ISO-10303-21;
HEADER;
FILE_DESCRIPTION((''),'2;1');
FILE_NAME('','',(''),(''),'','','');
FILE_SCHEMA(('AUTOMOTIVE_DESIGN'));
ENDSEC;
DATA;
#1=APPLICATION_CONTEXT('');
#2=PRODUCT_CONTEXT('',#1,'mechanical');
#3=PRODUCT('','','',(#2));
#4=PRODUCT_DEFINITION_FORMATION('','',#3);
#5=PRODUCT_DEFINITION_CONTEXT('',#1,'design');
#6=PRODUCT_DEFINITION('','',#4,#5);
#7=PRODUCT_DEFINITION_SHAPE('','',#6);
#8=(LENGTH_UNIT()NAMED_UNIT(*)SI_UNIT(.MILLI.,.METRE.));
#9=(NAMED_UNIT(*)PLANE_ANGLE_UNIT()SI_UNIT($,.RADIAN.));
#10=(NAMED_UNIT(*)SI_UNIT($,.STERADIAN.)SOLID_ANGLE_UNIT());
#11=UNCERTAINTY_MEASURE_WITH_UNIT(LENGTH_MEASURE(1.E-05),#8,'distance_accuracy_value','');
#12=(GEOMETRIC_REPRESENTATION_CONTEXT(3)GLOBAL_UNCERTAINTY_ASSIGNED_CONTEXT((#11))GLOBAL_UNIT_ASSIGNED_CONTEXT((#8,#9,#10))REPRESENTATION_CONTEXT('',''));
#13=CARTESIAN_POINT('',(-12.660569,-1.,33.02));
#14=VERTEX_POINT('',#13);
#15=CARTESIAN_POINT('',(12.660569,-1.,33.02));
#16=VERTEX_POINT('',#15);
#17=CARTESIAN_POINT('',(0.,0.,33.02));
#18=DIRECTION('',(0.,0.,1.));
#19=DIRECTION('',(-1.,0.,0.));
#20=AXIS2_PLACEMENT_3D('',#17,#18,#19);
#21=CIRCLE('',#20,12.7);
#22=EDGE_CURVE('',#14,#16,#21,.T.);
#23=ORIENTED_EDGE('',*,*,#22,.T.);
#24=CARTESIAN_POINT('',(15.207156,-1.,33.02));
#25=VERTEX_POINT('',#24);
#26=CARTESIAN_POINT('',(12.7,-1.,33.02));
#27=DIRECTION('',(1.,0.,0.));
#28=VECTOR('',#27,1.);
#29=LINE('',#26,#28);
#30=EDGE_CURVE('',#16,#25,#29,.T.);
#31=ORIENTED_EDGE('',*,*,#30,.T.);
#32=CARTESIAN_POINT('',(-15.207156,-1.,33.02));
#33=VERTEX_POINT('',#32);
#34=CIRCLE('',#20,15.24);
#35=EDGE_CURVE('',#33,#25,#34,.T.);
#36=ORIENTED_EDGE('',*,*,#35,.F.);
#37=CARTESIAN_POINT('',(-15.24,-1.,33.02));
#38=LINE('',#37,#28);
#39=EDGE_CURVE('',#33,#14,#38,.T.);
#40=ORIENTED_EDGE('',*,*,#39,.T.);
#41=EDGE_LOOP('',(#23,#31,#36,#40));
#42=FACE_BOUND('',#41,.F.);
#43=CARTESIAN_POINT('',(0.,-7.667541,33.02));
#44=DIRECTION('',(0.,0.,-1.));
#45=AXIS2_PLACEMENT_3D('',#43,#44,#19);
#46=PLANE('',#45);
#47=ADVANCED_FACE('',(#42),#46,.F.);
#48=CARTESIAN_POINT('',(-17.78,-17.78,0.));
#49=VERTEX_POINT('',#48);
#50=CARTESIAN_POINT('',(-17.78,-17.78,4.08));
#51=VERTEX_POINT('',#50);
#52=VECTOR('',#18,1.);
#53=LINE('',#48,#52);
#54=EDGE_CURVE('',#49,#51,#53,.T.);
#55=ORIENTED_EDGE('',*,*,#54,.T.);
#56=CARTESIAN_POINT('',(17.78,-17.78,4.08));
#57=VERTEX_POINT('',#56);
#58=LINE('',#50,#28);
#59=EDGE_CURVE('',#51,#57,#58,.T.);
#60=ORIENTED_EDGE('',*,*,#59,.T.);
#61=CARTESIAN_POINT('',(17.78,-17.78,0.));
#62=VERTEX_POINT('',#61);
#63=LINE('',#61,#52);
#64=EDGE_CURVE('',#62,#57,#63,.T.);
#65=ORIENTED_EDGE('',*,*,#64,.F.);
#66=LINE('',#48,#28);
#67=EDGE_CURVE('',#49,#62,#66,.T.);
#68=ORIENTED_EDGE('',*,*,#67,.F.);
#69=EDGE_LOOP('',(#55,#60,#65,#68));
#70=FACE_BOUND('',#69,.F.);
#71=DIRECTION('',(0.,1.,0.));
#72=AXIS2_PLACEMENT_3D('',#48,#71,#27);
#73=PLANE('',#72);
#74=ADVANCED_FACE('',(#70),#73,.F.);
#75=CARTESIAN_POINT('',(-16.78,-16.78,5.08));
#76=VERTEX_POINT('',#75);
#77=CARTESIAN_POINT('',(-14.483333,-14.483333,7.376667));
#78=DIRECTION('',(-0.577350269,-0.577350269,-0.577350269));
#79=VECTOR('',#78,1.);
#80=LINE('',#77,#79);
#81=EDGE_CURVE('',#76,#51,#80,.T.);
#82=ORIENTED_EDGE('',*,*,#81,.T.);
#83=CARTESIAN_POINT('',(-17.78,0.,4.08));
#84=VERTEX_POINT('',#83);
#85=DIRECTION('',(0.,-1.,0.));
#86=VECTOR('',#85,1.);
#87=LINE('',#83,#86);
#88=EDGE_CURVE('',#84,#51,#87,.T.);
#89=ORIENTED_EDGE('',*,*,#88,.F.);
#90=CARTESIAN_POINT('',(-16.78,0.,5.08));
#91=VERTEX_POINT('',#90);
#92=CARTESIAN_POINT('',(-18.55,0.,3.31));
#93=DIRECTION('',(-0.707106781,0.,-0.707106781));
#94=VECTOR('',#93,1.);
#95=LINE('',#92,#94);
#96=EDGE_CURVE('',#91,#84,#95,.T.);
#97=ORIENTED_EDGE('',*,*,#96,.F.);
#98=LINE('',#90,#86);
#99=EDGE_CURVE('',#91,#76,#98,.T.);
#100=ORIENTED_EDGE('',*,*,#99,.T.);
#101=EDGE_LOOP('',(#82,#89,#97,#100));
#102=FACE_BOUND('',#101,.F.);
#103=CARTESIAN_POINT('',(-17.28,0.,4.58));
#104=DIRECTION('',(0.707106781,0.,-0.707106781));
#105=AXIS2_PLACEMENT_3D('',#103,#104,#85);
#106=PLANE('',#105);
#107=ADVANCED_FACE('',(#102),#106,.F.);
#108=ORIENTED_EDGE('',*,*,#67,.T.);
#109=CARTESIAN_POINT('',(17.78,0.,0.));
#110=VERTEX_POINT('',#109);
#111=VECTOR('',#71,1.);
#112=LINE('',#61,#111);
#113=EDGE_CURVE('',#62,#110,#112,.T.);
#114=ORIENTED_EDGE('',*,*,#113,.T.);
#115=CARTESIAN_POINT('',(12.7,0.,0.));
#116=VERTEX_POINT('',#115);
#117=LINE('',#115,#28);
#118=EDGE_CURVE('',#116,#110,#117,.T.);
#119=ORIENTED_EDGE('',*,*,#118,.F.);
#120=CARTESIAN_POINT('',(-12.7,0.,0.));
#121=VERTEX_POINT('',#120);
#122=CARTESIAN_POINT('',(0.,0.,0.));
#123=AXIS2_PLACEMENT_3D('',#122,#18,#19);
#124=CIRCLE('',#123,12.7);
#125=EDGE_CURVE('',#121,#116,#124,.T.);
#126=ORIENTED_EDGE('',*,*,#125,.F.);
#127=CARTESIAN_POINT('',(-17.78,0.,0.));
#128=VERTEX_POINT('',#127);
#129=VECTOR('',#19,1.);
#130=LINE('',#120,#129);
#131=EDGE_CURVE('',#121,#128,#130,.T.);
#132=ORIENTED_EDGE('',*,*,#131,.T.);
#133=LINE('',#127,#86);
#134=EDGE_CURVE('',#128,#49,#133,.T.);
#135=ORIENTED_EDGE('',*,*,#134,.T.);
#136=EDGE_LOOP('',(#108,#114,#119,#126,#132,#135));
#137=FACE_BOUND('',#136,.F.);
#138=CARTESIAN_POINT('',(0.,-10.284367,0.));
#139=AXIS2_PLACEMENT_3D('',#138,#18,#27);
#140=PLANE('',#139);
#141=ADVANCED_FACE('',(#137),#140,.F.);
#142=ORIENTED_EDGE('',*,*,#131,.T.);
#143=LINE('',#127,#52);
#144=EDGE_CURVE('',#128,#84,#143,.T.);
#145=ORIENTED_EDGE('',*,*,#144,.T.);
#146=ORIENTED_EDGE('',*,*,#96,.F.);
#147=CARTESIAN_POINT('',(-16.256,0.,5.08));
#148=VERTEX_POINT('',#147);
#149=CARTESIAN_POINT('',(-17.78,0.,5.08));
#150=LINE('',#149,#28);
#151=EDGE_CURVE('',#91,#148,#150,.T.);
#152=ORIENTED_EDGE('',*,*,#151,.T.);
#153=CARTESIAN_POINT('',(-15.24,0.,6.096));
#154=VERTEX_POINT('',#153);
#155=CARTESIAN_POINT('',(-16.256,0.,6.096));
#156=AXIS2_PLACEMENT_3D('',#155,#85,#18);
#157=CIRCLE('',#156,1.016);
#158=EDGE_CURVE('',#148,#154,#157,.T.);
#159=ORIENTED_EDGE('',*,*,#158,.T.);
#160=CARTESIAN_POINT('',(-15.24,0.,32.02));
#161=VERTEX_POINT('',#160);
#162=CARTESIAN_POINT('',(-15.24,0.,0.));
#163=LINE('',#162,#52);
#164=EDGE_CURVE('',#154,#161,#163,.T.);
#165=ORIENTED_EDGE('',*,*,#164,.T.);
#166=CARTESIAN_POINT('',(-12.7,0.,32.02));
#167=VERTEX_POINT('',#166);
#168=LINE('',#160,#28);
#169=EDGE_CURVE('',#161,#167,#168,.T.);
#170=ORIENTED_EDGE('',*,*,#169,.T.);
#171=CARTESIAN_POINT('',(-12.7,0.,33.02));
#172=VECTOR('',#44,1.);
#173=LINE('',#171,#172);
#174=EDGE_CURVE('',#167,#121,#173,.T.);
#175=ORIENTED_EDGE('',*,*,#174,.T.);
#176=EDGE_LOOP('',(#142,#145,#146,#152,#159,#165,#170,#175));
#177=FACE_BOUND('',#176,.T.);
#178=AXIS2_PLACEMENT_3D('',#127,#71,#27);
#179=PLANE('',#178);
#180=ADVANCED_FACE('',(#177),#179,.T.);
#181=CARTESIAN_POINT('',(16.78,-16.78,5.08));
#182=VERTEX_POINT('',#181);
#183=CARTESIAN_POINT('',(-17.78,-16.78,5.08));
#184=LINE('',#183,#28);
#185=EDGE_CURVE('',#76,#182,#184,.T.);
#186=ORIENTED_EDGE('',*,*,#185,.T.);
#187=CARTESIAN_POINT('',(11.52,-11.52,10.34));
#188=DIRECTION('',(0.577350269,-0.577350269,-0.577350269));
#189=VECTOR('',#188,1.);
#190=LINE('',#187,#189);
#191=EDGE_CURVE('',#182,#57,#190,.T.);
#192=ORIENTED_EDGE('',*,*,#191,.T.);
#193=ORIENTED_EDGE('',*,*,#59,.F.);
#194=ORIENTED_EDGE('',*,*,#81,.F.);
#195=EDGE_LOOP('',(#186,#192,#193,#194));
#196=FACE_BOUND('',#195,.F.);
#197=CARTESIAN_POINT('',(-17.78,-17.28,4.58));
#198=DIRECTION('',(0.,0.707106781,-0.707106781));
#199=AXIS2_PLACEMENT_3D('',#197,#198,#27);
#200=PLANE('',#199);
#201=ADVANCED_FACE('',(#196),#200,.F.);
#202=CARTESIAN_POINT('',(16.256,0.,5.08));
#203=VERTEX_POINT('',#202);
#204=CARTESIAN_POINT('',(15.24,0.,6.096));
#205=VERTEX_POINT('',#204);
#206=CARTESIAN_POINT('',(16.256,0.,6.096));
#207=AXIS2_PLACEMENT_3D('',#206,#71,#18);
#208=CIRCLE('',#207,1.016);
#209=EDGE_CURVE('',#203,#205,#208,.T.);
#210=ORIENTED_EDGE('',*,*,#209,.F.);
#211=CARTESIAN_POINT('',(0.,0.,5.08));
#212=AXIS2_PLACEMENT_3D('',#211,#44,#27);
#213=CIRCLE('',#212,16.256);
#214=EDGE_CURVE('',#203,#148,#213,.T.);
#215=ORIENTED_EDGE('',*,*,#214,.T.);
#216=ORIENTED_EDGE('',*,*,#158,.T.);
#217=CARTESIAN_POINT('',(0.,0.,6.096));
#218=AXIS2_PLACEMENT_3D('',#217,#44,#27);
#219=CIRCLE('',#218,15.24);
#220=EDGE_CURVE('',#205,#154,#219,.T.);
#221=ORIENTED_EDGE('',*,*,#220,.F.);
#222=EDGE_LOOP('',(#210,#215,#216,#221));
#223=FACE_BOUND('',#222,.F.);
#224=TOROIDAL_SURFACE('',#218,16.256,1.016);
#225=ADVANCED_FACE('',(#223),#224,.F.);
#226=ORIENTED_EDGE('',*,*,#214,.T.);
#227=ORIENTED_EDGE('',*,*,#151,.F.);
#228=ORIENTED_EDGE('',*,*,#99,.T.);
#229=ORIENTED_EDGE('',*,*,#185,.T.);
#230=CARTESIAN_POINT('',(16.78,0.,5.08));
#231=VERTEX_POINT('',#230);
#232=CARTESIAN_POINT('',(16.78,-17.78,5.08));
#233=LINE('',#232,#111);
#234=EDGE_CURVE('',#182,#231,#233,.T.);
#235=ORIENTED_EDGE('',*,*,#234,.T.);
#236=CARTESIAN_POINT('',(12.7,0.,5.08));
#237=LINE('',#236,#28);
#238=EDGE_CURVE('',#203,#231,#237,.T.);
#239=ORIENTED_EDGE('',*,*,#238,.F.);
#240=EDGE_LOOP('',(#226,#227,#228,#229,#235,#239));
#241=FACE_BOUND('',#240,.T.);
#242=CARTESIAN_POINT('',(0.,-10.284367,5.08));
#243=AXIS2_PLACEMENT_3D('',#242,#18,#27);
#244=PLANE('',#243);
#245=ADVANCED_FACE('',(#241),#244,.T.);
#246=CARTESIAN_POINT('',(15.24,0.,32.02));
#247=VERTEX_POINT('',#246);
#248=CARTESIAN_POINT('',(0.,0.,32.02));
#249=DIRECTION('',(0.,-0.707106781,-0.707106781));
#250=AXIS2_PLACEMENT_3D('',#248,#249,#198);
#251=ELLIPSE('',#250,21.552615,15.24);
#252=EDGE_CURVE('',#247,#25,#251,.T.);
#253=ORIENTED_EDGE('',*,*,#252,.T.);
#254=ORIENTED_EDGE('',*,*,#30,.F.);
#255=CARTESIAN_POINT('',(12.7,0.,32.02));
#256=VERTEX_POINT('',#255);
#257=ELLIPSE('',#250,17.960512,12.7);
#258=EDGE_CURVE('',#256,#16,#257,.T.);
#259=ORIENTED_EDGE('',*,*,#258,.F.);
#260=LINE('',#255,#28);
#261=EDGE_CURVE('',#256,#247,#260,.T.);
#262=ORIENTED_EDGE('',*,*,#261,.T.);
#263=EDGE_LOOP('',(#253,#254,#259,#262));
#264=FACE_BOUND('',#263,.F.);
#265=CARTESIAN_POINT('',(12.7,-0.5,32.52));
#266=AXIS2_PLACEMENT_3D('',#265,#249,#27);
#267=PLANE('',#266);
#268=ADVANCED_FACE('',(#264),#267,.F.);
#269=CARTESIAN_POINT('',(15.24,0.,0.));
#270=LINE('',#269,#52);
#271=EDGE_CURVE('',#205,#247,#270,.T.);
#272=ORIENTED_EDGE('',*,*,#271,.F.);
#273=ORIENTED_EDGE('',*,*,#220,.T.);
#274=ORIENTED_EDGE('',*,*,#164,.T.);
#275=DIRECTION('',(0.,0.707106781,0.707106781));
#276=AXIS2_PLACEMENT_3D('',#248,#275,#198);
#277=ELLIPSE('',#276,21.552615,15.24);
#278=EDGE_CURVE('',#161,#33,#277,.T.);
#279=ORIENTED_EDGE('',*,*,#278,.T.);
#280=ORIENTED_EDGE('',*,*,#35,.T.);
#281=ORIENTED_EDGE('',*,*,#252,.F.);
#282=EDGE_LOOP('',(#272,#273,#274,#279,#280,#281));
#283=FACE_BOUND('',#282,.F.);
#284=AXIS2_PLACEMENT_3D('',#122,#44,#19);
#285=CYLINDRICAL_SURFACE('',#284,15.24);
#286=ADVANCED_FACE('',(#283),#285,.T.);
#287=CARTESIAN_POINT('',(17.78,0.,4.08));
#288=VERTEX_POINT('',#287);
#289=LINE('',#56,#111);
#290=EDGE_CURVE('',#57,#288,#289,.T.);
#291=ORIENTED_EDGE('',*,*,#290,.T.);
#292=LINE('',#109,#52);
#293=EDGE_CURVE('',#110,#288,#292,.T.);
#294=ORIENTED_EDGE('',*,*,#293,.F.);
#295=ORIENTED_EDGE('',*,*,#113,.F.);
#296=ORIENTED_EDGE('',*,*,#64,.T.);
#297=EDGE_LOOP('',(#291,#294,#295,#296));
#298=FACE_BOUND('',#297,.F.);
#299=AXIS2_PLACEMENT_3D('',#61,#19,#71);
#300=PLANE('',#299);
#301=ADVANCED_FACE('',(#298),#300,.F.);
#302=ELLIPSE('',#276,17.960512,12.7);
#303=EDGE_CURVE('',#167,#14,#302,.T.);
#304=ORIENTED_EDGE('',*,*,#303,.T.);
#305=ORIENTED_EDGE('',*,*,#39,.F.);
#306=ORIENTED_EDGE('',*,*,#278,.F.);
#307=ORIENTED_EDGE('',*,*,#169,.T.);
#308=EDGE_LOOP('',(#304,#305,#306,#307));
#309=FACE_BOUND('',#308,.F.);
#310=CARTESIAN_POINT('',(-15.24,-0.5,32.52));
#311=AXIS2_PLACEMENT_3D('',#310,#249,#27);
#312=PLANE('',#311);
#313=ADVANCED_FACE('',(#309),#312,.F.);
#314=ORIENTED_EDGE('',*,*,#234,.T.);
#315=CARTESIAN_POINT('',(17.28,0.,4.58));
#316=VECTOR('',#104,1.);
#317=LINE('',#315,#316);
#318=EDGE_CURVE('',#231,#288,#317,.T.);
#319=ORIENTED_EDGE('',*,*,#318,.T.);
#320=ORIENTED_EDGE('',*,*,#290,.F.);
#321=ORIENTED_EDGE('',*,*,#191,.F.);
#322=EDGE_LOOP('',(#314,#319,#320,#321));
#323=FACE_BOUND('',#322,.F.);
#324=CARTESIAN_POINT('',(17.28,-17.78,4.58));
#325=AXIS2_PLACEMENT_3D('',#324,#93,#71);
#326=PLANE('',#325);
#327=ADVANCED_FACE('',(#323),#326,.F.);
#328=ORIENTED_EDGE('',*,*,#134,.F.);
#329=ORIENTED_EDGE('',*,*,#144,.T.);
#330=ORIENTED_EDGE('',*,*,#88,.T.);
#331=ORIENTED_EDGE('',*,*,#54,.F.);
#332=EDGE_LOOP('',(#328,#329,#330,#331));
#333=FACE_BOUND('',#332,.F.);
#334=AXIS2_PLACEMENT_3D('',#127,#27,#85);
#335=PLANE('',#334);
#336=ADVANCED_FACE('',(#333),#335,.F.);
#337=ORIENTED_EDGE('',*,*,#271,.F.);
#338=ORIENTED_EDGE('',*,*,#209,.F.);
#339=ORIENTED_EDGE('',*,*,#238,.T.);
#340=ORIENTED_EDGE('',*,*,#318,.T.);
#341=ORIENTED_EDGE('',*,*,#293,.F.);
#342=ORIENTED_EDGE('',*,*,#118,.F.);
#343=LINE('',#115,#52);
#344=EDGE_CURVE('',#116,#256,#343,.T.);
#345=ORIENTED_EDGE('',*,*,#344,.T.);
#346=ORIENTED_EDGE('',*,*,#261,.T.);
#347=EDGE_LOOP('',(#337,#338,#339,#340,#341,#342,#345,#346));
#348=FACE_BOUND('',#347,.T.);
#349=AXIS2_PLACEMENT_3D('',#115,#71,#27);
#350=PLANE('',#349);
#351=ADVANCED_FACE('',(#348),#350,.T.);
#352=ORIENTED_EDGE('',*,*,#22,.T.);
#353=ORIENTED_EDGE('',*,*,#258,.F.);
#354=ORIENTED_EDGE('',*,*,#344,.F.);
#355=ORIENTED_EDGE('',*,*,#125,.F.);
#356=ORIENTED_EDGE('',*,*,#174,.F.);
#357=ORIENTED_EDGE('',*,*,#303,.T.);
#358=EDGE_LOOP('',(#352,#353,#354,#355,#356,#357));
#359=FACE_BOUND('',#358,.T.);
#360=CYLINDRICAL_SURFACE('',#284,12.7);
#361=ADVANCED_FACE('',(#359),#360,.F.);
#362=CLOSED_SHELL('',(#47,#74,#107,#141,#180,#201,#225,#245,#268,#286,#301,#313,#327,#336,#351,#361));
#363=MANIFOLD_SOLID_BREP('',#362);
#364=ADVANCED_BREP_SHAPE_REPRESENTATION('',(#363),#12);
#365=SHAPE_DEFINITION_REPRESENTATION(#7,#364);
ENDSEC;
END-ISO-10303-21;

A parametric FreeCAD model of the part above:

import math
import FreeCAD as App
import Part
import Sketcher
from FreeCAD import Vector
Q = App.Units.Quantity


def edges_at(feature, points):
    """Names of the edges that pass closest to the given points."""
    edges = feature.Shape.Edges
    near = lambda p: min(range(len(edges)), key=lambda i: edges[i].distToShape(Part.Vertex(*p))[0])
    return sorted({f"Edge{near(p) + 1}" for p in points})

doc = App.newDocument("Part")
body = doc.addObject("PartDesign::Body", "Body")

sketch1 = body.newObject("Sketcher::SketchObject", "Sketch")
sketch1.AttachmentSupport = (doc.getObject("XY_Plane"), [""])
sketch1.MapMode = "FlatFace"
sketch1.addGeometry(Part.ArcOfCircle(Part.Circle(Vector(0, 0, 0), Vector(0, 0, 1), 12.7), math.radians(180), math.radians(360)), False)
sketch1.addGeometry(Part.LineSegment(Vector(-12.7, 0, 0), Vector(-15.2, 0, 0)), False)
sketch1.addGeometry(Part.ArcOfCircle(Part.Circle(Vector(0, 0, 0), Vector(0, 0, 1), 15.2), math.radians(180), math.radians(360)), False)
sketch1.addGeometry(Part.LineSegment(Vector(15.2, 0, 0), Vector(12.7, 0, 0)), False)
sketch1.addConstraint(Sketcher.Constraint("Coincident", 0, 1, 1, 1))
sketch1.addConstraint(Sketcher.Constraint("Coincident", 1, 2, 2, 1))
sketch1.addConstraint(Sketcher.Constraint("Coincident", 2, 2, 3, 1))
sketch1.addConstraint(Sketcher.Constraint("Coincident", 3, 2, 0, 2))
sketch1.addConstraint(Sketcher.Constraint("Horizontal", 1))
sketch1.addConstraint(Sketcher.Constraint("Horizontal", 3))
sketch1.addConstraint(Sketcher.Constraint("Coincident", 0, 3, -1, 1))
sketch1.addConstraint(Sketcher.Constraint("Coincident", 2, 3, -1, 1))
sketch1.addConstraint(Sketcher.Constraint("PointOnObject", 0, 1, -1))
sketch1.addConstraint(Sketcher.Constraint("PointOnObject", 2, 2, -1))
sketch1.addConstraint(Sketcher.Constraint("Radius", 0, Q("0.5 in")))
sketch1.addConstraint(Sketcher.Constraint("Radius", 2, Q("0.6 in")))
pad1 = body.newObject("PartDesign::Pad", "Pad")
pad1.Profile = sketch1
pad1.Length = Q("1.3 in")

sketch2 = body.newObject("Sketcher::SketchObject", "Sketch001")
sketch2.AttachmentSupport = (doc.getObject("XY_Plane"), [""])
sketch2.MapMode = "FlatFace"
sketch2.addGeometry(Part.LineSegment(Vector(-18, 0, 0), Vector(-18, -18, 0)), False)
sketch2.addGeometry(Part.LineSegment(Vector(-18, -18, 0), Vector(18, -18, 0)), False)
sketch2.addGeometry(Part.LineSegment(Vector(18, -18, 0), Vector(18, 0, 0)), False)
sketch2.addGeometry(Part.LineSegment(Vector(18, 0, 0), Vector(13, 0, 0)), False)
sketch2.addGeometry(Part.ArcOfCircle(Part.Circle(Vector(0, 0, 0), Vector(0, 0, 1), 13), math.radians(180), math.radians(360)), False)
sketch2.addGeometry(Part.LineSegment(Vector(-13, 0, 0), Vector(-18, 0, 0)), False)
sketch2.addConstraint(Sketcher.Constraint("Coincident", 0, 2, 1, 1))
sketch2.addConstraint(Sketcher.Constraint("Coincident", 1, 2, 2, 1))
sketch2.addConstraint(Sketcher.Constraint("Coincident", 2, 2, 3, 1))
sketch2.addConstraint(Sketcher.Constraint("Coincident", 3, 2, 4, 2))
sketch2.addConstraint(Sketcher.Constraint("Coincident", 4, 1, 5, 1))
sketch2.addConstraint(Sketcher.Constraint("Coincident", 5, 2, 0, 1))
sketch2.addConstraint(Sketcher.Constraint("Vertical", 0))
sketch2.addConstraint(Sketcher.Constraint("Horizontal", 1))
sketch2.addConstraint(Sketcher.Constraint("Vertical", 2))
sketch2.addConstraint(Sketcher.Constraint("Horizontal", 3))
sketch2.addConstraint(Sketcher.Constraint("Horizontal", 5))
sketch2.addConstraint(Sketcher.Constraint("Coincident", 4, 3, -1, 1))
sketch2.addConstraint(Sketcher.Constraint("Symmetric", 2, 2, 5, 2, -1, 1))
sketch2.addConstraint(Sketcher.Constraint("PointOnObject", 2, 2, -1))
sketch2.addConstraint(Sketcher.Constraint("Radius", 4, Q("0.5 in")))
sketch2.addConstraint(Sketcher.Constraint("DistanceX", 1, 1, 1, 2, Q("1.4 in")))
sketch2.addConstraint(Sketcher.Constraint("DistanceY", 0, 2, 0, 1, Q("0.7 in")))
pad2 = body.newObject("PartDesign::Pad", "Pad001")
pad2.Profile = sketch2
pad2.Length = Q("0.2 in")
doc.recompute()

fillet = body.newObject("PartDesign::Fillet", "Fillet")
fillet.Base = (pad2, edges_at(pad2, [(0, -15.24, 5.08)]))
fillet.Radius = Q("0.04 in")
doc.recompute()

chamfer = body.newObject("PartDesign::Chamfer", "Chamfer")
chamfer.Base = (fillet, edges_at(fillet, [
    (-13.97, 0, 33.02),
    (13.97, 0, 33.02),
    (-17.78, -8.89, 5.08),
    (17.78, -8.89, 5.08),
    (0, -17.78, 5.08),
]))
chamfer.Size = 1

doc.recompute()
